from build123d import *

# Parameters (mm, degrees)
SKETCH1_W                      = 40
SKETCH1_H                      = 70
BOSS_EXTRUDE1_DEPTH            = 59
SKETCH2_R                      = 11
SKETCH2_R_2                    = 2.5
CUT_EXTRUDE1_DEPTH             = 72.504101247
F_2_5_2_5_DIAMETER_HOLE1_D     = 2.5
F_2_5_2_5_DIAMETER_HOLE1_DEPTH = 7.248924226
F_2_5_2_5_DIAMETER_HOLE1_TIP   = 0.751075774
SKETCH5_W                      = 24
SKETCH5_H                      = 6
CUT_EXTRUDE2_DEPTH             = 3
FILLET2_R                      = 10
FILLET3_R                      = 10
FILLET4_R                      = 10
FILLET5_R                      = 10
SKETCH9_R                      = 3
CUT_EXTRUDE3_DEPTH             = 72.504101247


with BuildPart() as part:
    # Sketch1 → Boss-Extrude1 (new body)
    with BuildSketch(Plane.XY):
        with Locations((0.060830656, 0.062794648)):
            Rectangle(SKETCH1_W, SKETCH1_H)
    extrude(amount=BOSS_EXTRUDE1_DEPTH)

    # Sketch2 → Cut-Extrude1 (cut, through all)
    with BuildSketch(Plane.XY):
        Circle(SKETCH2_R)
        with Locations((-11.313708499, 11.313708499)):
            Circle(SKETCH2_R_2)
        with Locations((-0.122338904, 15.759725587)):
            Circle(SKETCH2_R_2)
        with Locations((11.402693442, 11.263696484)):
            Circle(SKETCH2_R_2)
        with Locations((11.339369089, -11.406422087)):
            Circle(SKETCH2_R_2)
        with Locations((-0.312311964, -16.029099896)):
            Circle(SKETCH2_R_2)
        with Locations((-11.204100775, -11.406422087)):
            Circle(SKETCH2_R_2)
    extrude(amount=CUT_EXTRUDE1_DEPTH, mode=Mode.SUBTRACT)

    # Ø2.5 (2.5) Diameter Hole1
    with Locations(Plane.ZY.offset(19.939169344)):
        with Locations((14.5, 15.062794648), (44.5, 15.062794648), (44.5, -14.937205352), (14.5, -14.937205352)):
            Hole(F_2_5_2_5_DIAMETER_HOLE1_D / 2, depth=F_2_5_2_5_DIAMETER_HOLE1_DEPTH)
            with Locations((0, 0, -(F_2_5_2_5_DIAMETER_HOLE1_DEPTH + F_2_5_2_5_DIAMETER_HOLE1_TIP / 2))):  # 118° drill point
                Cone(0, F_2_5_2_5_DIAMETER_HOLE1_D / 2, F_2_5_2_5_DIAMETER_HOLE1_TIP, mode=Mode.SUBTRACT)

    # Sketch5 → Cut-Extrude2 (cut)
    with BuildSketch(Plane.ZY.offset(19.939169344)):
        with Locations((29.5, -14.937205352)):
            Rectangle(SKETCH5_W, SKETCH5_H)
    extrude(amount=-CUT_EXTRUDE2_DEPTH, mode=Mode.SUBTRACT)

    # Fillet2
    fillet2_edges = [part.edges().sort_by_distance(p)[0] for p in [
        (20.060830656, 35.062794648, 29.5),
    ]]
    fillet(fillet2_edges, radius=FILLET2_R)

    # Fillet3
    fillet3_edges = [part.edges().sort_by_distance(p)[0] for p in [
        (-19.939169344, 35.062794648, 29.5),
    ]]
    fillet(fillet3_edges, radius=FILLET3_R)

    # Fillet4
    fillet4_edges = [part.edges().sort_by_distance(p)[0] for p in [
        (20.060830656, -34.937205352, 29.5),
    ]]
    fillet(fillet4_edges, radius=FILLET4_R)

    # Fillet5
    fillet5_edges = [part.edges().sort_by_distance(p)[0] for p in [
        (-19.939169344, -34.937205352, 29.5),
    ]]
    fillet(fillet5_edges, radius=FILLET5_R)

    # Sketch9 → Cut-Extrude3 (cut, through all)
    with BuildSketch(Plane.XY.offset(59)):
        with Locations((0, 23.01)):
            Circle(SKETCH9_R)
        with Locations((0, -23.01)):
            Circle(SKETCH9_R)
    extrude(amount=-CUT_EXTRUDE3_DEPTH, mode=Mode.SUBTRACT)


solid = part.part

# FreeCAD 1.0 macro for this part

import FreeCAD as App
import Part
import Sketcher
Q = App.Units.Quantity


def edges_at(feature, points):
    """Names of the edges that pass closest to the given points."""
    edges = feature.Shape.Edges
    near = lambda p: min(range(len(edges)), key=lambda i: edges[i].distToShape(Part.Vertex(*p))[0])
    return sorted({f"Edge{near(p) + 1}" for p in points})

doc = App.newDocument("Part")
body = doc.addObject("PartDesign::Body", "Body")

# Sketch on XY plane
sketch1 = doc.addObject("Sketcher::SketchObject", "Sketch")
body.addObject(sketch1)
sketch1.AttachmentSupport = (doc.XY_Plane, [""])
sketch1.MapMode = "FlatFace"
sketch1.addGeometry(Part.LineSegment(App.Vector(-20, 35, 0), App.Vector(-20, -35, 0)), False)
sketch1.addGeometry(Part.LineSegment(App.Vector(-20, -35, 0), App.Vector(20, -35, 0)), False)
sketch1.addGeometry(Part.LineSegment(App.Vector(20, -35, 0), App.Vector(20, 35, 0)), False)
sketch1.addGeometry(Part.LineSegment(App.Vector(20, 35, 0), App.Vector(-20, 35, 0)), False)
sketch1.addConstraint(Sketcher.Constraint("Coincident", 0, 2, 1, 1))
sketch1.addConstraint(Sketcher.Constraint("Coincident", 1, 2, 2, 1))
sketch1.addConstraint(Sketcher.Constraint("Coincident", 2, 2, 3, 1))
sketch1.addConstraint(Sketcher.Constraint("Coincident", 3, 2, 0, 1))
sketch1.addConstraint(Sketcher.Constraint("Vertical", 0))
sketch1.addConstraint(Sketcher.Constraint("Horizontal", 1))
sketch1.addConstraint(Sketcher.Constraint("Vertical", 2))
sketch1.addConstraint(Sketcher.Constraint("Horizontal", 3))
sketch1.addConstraint(Sketcher.Constraint("DistanceX", 1, 1, 1, 2, Q("40 mm")))
sketch1.addConstraint(Sketcher.Constraint("DistanceY", 0, 2, 0, 1, Q("70 mm")))
sketch1.addConstraint(Sketcher.Constraint("DistanceX", 0, 2, -1, 1, Q("19.939169 mm")))
sketch1.addConstraint(Sketcher.Constraint("DistanceY", 0, 2, -1, 1, Q("34.937205 mm")))
pad1 = doc.addObject("PartDesign::Pad", "Pad")
body.addObject(pad1)
pad1.Profile = sketch1
pad1.Length = 59

# Sketch on XY plane
sketch2 = doc.addObject("Sketcher::SketchObject", "Sketch001")
body.addObject(sketch2)
sketch2.AttachmentSupport = (doc.XY_Plane, [""])
sketch2.MapMode = "FlatFace"
sketch2.addGeometry(Part.Circle(App.Vector(0, 0, 0), App.Vector(0, 0, 1), 11), False)
sketch2.addGeometry(Part.Circle(App.Vector(-11.3, 11.3, 0), App.Vector(0, 0, 1), 2.5), False)
sketch2.addGeometry(Part.Circle(App.Vector(-0.1, 15.8, 0), App.Vector(0, 0, 1), 2.5), False)
sketch2.addGeometry(Part.Circle(App.Vector(11.4, 11.3, 0), App.Vector(0, 0, 1), 2.5), False)
sketch2.addGeometry(Part.Circle(App.Vector(11.3, -11.4, 0), App.Vector(0, 0, 1), 2.5), False)
sketch2.addGeometry(Part.Circle(App.Vector(-0.3, -16, 0), App.Vector(0, 0, 1), 2.5), False)
sketch2.addGeometry(Part.Circle(App.Vector(-11.2, -11.4, 0), App.Vector(0, 0, 1), 2.5), False)
sketch2.addConstraint(Sketcher.Constraint("Coincident", 0, 3, -1, 1))
sketch2.addConstraint(Sketcher.Constraint("Equal", 1, 2))
sketch2.addConstraint(Sketcher.Constraint("Equal", 2, 3))
sketch2.addConstraint(Sketcher.Constraint("Equal", 3, 4))
sketch2.addConstraint(Sketcher.Constraint("Equal", 4, 5))
sketch2.addConstraint(Sketcher.Constraint("Equal", 5, 6))
sketch2.addConstraint(Sketcher.Constraint("Horizontal", 4, 3, 6, 3))
sketch2.addConstraint(Sketcher.Constraint("Diameter", 0, Q("22 mm")))
sketch2.addConstraint(Sketcher.Constraint("Diameter", 1, Q("5 mm")))
sketch2.addConstraint(Sketcher.Constraint("DistanceY", 5, 3, -1, 1, Q("16.0291 mm")))
sketch2.addConstraint(Sketcher.Constraint("DistanceX", 6, 3, -1, 1, Q("11.204101 mm")))
sketch2.addConstraint(Sketcher.Constraint("DistanceX", 1, 3, 3, 3, Q("22.716402 mm")))
sketch2.addConstraint(Sketcher.Constraint("DistanceX", 1, 3, -1, 1, Q("11.313708 mm")))
sketch2.addConstraint(Sketcher.Constraint("DistanceY", -1, 1, 1, 3, Q("11.313708 mm")))
sketch2.addConstraint(Sketcher.Constraint("DistanceX", 2, 3, -1, 1, Q("0.122339 mm")))
sketch2.addConstraint(Sketcher.Constraint("DistanceX", -1, 1, 4, 3, Q("11.339369 mm")))
sketch2.addConstraint(Sketcher.Constraint("DistanceX", 5, 3, -1, 1, Q("0.312312 mm")))
sketch2.addConstraint(Sketcher.Constraint("DistanceY", 3, 3, 2, 3, Q("4.496029 mm")))
sketch2.addConstraint(Sketcher.Constraint("DistanceY", 4, 3, 3, 3, Q("22.670119 mm")))
sketch2.addConstraint(Sketcher.Constraint("DistanceY", 4, 3, 1, 3, Q("22.720131 mm")))
pocket1 = doc.addObject("PartDesign::Pocket", "Pocket")
body.addObject(pocket1)
pocket1.Profile = sketch2
pocket1.Type = "ThroughAll"
pocket1.Reversed = True

# Sketch on YZ plane
sketch3 = doc.addObject("Sketcher::SketchObject", "Sketch002")
body.addObject(sketch3)
sketch3.AttachmentSupport = (doc.YZ_Plane, [""])
sketch3.MapMode = "FlatFace"
sketch3.AttachmentOffset = App.Placement(App.Vector(0, 0, -19.939169), App.Rotation())
sketch3.addGeometry(Part.Circle(App.Vector(15.1, 14.5, 0), App.Vector(0, 0, 1), 1.2), False)
sketch3.addGeometry(Part.Circle(App.Vector(15.1, 44.5, 0), App.Vector(0, 0, 1), 1.2), False)
sketch3.addGeometry(Part.Circle(App.Vector(-14.9, 44.5, 0), App.Vector(0, 0, 1), 1.2), False)
sketch3.addGeometry(Part.Circle(App.Vector(-14.9, 14.5, 0), App.Vector(0, 0, 1), 1.2), False)
sketch3.addConstraint(Sketcher.Constraint("Equal", 0, 1))
sketch3.addConstraint(Sketcher.Constraint("Equal", 1, 2))
sketch3.addConstraint(Sketcher.Constraint("Equal", 2, 3))
sketch3.addConstraint(Sketcher.Constraint("Horizontal", 1, 3, 2, 3))
sketch3.addConstraint(Sketcher.Constraint("Horizontal", 0, 3, 3, 3))
sketch3.addConstraint(Sketcher.Constraint("Vertical", 0, 3, 1, 3))
sketch3.addConstraint(Sketcher.Constraint("Vertical", 2, 3, 3, 3))
sketch3.addConstraint(Sketcher.Constraint("Diameter", 0, Q("2.5 mm")))
sketch3.addConstraint(Sketcher.Constraint("DistanceY", 0, 3, 1, 3, Q("30 mm")))
sketch3.addConstraint(Sketcher.Constraint("DistanceX", 2, 3, 1, 3, Q("30 mm")))
sketch3.addConstraint(Sketcher.Constraint("DistanceY", -1, 1, 0, 3, Q("14.5 mm")))
sketch3.addConstraint(Sketcher.Constraint("DistanceX", -1, 1, 0, 3, Q("15.062795 mm")))
doc.recompute()
hole = doc.addObject("PartDesign::Hole", "Hole")
body.addObject(hole)
hole.Profile = sketch3
hole.ThreadType = "None"
hole.Diameter = 2.5
hole.DepthType = "Dimension"
hole.Depth = 7.248924
hole.DrillPoint = "Angled"
hole.DrillPointAngle = 118
hole.Reversed = True

# Sketch on YZ plane
sketch4 = doc.addObject("Sketcher::SketchObject", "Sketch003")
body.addObject(sketch4)
sketch4.AttachmentSupport = (doc.YZ_Plane, [""])
sketch4.MapMode = "FlatFace"
sketch4.AttachmentOffset = App.Placement(App.Vector(0, 0, -19.939169), App.Rotation())
sketch4.addGeometry(Part.LineSegment(App.Vector(-12, 18, 0), App.Vector(-18, 18, 0)), False)
sketch4.addGeometry(Part.LineSegment(App.Vector(-18, 18, 0), App.Vector(-18, 42, 0)), False)
sketch4.addGeometry(Part.LineSegment(App.Vector(-18, 42, 0), App.Vector(-12, 42, 0)), False)
sketch4.addGeometry(Part.LineSegment(App.Vector(-12, 42, 0), App.Vector(-12, 18, 0)), False)
sketch4.addConstraint(Sketcher.Constraint("Coincident", 0, 2, 1, 1))
sketch4.addConstraint(Sketcher.Constraint("Coincident", 1, 2, 2, 1))
sketch4.addConstraint(Sketcher.Constraint("Coincident", 2, 2, 3, 1))
sketch4.addConstraint(Sketcher.Constraint("Coincident", 3, 2, 0, 1))
sketch4.addConstraint(Sketcher.Constraint("Horizontal", 0))
sketch4.addConstraint(Sketcher.Constraint("Vertical", 1))
sketch4.addConstraint(Sketcher.Constraint("Horizontal", 2))
sketch4.addConstraint(Sketcher.Constraint("Vertical", 3))
sketch4.addConstraint(Sketcher.Constraint("DistanceX", 0, 2, 0, 1, Q("6 mm")))
sketch4.addConstraint(Sketcher.Constraint("DistanceY", 1, 1, 1, 2, Q("24 mm")))
sketch4.addConstraint(Sketcher.Constraint("DistanceY", -1, 1, 0, 2, Q("17.5 mm")))
sketch4.addConstraint(Sketcher.Constraint("DistanceX", 0, 2, -1, 1, Q("17.937205 mm")))
pocket2 = doc.addObject("PartDesign::Pocket", "Pocket001")
body.addObject(pocket2)
pocket2.Profile = sketch4
pocket2.Length = 3
pocket2.Reversed = True
doc.recompute()

fillet = doc.addObject("PartDesign::Fillet", "Fillet")
body.addObject(fillet)
fillet.Base = (pocket2, edges_at(pocket2, [(20.061, 35.063, 29.5)]))
fillet.Radius = 10
doc.recompute()

fillet2 = doc.addObject("PartDesign::Fillet", "Fillet001")
body.addObject(fillet2)
fillet2.Base = (fillet, edges_at(fillet, [(-19.939, 35.063, 29.5)]))
fillet2.Radius = 10
doc.recompute()

fillet3 = doc.addObject("PartDesign::Fillet", "Fillet002")
body.addObject(fillet3)
fillet3.Base = (fillet2, edges_at(fillet2, [(20.061, -34.937, 29.5)]))
fillet3.Radius = 10
doc.recompute()

fillet4 = doc.addObject("PartDesign::Fillet", "Fillet003")
body.addObject(fillet4)
fillet4.Base = (fillet3, edges_at(fillet3, [(-19.939, -34.937, 29.5)]))
fillet4.Radius = 10

# Sketch on XY plane
sketch5 = doc.addObject("Sketcher::SketchObject", "Sketch004")
body.addObject(sketch5)
sketch5.AttachmentSupport = (doc.XY_Plane, [""])
sketch5.MapMode = "FlatFace"
sketch5.AttachmentOffset = App.Placement(App.Vector(0, 0, 59), App.Rotation())
sketch5.addGeometry(Part.Circle(App.Vector(0, 23, 0), App.Vector(0, 0, 1), 3), False)
sketch5.addGeometry(Part.Circle(App.Vector(0, -23, 0), App.Vector(0, 0, 1), 3), False)
sketch5.addConstraint(Sketcher.Constraint("Equal", 0, 1))
sketch5.addConstraint(Sketcher.Constraint("Symmetric", 0, 3, 1, 3, -1, 1))
sketch5.addConstraint(Sketcher.Constraint("PointOnObject", 0, 3, -2))
sketch5.addConstraint(Sketcher.Constraint("Diameter", 0, Q("6 mm")))
sketch5.addConstraint(Sketcher.Constraint("DistanceY", -1, 1, 0, 3, Q("23.01 mm")))
pocket3 = doc.addObject("PartDesign::Pocket", "Pocket002")
body.addObject(pocket3)
pocket3.Profile = sketch5
pocket3.Type = "ThroughAll"

doc.recompute()
